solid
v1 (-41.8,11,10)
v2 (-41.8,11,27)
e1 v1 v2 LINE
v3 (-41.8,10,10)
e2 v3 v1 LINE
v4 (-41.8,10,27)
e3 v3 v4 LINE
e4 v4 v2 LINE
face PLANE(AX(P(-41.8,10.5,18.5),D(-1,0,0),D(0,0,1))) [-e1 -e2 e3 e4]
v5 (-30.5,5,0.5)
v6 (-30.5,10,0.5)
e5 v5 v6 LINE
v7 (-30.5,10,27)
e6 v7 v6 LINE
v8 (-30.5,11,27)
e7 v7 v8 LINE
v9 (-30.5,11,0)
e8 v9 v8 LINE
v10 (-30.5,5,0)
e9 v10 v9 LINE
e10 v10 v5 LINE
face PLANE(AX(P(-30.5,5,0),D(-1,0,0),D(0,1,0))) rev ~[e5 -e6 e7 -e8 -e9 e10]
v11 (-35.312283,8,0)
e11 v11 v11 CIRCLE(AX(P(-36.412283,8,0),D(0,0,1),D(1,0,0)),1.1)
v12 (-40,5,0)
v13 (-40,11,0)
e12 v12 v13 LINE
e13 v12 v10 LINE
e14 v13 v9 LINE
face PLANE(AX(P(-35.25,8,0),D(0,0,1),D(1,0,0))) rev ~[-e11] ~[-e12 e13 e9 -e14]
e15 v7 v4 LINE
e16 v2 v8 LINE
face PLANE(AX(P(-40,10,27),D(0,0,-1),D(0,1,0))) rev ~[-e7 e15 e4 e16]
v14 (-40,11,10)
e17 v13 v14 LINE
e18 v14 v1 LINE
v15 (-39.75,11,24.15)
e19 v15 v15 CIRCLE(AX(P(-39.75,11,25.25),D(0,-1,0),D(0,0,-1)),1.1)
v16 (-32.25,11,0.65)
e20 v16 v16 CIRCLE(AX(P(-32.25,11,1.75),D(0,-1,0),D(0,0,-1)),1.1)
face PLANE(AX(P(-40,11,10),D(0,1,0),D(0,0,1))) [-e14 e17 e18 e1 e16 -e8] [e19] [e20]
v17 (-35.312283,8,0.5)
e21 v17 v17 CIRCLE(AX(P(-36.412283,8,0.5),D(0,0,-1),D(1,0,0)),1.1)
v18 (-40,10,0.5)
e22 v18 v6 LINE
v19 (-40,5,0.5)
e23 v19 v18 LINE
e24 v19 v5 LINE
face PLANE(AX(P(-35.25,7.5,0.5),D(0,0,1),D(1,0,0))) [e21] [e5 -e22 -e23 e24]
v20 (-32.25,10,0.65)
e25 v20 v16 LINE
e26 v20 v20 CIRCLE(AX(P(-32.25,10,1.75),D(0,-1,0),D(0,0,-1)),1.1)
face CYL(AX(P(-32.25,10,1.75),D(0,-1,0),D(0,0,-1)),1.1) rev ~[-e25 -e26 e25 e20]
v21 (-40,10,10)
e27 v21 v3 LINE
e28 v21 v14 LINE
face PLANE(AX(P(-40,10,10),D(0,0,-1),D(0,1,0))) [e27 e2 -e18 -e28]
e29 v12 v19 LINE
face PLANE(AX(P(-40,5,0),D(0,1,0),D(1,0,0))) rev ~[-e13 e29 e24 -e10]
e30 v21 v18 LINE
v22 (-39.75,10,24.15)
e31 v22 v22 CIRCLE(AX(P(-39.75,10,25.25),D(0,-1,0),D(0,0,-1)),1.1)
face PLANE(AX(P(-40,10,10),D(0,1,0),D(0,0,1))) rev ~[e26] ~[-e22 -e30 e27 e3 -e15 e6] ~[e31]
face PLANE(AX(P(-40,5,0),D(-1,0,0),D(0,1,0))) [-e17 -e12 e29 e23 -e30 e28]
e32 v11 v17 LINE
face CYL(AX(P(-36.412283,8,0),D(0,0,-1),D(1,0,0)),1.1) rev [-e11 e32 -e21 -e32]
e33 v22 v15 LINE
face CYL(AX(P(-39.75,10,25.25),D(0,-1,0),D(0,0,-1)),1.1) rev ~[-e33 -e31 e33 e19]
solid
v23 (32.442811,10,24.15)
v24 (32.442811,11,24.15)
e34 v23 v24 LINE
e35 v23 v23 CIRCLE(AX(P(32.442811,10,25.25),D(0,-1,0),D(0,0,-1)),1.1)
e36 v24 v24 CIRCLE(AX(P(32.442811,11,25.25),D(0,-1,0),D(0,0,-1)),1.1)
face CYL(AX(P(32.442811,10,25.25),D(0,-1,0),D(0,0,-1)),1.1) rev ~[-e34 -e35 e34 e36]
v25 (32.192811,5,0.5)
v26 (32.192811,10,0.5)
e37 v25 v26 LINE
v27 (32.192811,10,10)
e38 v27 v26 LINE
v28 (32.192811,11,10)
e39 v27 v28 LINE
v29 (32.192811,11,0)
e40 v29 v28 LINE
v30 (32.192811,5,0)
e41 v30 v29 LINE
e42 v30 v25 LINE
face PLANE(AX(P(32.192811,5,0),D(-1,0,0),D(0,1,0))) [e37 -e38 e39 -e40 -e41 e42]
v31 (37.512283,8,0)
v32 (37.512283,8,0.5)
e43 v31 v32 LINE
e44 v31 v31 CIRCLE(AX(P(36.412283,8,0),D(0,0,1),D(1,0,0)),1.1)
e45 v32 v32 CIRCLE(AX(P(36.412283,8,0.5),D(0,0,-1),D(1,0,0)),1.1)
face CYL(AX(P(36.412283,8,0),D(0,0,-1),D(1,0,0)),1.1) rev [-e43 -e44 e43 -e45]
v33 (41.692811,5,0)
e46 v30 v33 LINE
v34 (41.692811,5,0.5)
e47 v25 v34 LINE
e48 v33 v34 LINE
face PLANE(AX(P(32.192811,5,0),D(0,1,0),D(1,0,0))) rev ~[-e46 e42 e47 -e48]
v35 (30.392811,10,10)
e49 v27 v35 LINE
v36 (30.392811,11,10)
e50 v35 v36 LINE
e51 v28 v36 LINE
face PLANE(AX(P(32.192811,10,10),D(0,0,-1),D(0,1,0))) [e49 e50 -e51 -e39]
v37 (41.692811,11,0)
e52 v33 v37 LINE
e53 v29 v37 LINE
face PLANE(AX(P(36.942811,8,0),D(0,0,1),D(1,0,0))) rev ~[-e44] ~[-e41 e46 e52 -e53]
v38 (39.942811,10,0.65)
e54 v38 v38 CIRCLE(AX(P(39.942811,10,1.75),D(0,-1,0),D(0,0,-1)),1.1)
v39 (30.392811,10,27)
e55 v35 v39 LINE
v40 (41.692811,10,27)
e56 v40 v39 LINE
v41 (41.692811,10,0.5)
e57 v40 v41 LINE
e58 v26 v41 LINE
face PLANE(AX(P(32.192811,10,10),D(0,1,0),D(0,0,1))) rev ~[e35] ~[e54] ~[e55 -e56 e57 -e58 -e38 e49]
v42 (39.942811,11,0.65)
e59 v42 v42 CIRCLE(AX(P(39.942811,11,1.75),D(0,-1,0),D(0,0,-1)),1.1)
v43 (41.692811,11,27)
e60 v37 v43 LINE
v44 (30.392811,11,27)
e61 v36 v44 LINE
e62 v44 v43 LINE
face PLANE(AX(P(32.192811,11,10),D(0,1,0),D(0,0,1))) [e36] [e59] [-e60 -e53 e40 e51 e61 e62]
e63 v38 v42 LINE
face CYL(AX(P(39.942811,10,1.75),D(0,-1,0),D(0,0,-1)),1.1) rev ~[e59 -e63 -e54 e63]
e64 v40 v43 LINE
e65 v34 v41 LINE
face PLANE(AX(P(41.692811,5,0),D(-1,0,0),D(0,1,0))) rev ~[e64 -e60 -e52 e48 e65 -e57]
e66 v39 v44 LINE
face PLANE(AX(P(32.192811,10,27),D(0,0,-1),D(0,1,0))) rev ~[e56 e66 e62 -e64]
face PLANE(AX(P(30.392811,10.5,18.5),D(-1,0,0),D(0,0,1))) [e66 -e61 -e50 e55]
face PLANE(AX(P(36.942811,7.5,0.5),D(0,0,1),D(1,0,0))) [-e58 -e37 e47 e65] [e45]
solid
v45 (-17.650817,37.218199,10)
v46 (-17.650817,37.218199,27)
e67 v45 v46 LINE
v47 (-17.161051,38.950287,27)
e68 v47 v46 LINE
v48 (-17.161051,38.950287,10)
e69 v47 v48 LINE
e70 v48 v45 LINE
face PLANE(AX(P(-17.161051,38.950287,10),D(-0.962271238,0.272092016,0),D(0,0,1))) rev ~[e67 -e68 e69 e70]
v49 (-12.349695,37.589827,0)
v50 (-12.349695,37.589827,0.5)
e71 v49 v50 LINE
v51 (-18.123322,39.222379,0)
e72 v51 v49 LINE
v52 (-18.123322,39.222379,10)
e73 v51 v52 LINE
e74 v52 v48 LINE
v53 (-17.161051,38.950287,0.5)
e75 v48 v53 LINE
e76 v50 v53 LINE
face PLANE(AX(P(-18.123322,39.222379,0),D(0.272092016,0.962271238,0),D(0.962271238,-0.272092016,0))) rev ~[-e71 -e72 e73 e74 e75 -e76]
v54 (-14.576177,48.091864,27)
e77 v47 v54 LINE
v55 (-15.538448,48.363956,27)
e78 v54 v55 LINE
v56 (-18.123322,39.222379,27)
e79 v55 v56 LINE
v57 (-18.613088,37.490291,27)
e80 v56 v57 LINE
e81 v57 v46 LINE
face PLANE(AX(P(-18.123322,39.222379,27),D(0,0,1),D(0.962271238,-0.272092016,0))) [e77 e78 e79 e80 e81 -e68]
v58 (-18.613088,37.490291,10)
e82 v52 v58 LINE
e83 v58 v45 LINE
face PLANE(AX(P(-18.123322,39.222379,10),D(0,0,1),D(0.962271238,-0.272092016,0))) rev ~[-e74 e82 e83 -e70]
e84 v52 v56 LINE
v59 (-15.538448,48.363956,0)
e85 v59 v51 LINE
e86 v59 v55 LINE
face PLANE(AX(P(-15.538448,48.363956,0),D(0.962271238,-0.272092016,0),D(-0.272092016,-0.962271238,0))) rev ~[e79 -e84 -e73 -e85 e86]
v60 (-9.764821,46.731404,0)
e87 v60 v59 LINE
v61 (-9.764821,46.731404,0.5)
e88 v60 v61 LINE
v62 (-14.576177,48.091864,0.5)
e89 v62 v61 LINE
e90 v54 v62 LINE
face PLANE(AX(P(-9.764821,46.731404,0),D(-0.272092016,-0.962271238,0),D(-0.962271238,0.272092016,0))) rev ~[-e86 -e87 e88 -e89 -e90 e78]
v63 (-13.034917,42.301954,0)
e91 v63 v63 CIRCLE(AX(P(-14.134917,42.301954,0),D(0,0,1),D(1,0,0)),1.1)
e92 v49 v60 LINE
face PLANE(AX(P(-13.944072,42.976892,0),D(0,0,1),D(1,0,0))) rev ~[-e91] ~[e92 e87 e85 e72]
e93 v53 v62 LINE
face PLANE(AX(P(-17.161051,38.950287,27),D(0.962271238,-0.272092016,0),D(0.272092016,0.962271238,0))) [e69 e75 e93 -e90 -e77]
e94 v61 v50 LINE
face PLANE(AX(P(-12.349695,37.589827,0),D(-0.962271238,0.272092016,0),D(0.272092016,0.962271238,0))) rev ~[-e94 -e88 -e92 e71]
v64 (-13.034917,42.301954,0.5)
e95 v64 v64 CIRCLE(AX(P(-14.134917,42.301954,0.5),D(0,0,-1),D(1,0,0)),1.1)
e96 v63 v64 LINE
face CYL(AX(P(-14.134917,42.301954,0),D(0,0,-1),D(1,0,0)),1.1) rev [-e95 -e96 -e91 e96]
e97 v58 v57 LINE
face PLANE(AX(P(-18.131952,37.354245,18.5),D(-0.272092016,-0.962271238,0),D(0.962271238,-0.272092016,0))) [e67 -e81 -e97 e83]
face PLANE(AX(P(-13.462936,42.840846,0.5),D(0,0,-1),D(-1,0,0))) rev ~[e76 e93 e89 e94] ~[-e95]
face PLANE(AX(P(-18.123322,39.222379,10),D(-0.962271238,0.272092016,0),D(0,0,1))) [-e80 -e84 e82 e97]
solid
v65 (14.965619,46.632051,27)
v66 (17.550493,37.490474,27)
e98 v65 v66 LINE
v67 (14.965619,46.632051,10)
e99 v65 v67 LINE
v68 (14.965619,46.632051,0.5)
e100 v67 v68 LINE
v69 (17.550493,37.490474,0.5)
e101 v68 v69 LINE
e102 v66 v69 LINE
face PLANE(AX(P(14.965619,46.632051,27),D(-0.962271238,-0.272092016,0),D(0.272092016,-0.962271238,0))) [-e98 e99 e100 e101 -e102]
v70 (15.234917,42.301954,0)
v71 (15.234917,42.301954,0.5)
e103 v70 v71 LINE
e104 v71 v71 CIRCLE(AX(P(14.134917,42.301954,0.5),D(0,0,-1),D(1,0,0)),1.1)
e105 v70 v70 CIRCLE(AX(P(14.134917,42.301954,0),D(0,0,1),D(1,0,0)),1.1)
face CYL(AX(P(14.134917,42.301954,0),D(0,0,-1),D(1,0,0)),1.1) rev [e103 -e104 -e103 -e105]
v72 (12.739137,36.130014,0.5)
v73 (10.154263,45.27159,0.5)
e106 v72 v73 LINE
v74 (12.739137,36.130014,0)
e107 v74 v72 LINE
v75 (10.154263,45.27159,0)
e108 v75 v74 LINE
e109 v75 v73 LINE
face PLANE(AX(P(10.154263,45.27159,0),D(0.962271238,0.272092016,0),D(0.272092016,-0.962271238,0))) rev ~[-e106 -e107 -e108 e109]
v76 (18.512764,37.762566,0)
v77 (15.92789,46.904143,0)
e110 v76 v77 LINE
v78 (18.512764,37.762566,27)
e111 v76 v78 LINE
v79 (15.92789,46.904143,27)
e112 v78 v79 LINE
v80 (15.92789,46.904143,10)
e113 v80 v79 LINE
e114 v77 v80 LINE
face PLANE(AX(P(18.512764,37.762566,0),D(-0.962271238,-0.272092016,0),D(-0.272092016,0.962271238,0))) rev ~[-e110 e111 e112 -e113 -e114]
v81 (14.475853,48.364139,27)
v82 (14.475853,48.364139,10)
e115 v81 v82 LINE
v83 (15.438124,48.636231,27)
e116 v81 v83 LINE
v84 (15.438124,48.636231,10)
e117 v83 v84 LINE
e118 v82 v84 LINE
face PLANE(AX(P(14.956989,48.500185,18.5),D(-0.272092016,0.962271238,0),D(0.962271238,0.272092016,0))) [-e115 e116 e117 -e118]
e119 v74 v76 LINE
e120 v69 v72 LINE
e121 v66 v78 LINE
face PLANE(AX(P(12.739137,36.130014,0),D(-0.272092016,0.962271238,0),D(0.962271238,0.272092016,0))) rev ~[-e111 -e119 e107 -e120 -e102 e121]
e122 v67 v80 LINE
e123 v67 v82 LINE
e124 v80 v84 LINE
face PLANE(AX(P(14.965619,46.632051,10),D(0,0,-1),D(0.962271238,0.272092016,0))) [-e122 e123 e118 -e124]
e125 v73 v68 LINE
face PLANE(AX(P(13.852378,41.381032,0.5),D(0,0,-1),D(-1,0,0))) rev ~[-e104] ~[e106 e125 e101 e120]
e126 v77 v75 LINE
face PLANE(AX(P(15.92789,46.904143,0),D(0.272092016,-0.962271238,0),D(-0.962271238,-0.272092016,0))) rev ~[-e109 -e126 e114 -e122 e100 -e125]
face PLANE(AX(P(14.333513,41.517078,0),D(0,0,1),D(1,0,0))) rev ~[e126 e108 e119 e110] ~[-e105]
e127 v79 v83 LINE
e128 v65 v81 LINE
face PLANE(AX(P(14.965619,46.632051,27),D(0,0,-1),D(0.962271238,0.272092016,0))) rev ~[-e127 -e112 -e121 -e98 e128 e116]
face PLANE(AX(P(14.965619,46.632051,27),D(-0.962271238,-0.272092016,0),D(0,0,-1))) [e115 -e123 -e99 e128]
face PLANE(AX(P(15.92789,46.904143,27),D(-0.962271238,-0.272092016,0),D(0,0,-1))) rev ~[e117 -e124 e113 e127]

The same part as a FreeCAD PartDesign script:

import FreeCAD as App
import Part
import Sketcher


def add_polygon(sketch, points):
    """Adds a closed chain of lines whose ends are joined by coincident constraints."""
    first, n = sketch.GeometryCount, len(points)
    for a, b in zip(points, points[1:] + points[:1]):
        sketch.addGeometry(Part.LineSegment(App.Vector(*a, 0), App.Vector(*b, 0)), False)
    for i in range(n):
        sketch.addConstraint(Sketcher.Constraint("Coincident", first + i, 2, first + (i + 1) % n, 1))

doc = App.newDocument("Part")
body = doc.addObject("PartDesign::Body", "Body")

sketch1 = body.newObject("Sketcher::SketchObject", "Sketch")
sketch1.AttachmentSupport = (doc.getObject("XY_Plane"), [""])
sketch1.MapMode = "FlatFace"
add_polygon(sketch1, [(-40, 11), (-40, 5), (-30.5, 5), (-30.5, 11)])
sketch1.addGeometry(Part.Circle(App.Vector(-36.4, 8, 0), App.Vector(0, 0, 1), 1.1), False)
sketch1.addConstraint([
    Sketcher.Constraint("Vertical", 0),
    Sketcher.Constraint("Horizontal", 1),
    Sketcher.Constraint("Vertical", 2),
    Sketcher.Constraint("Horizontal", 3),
    Sketcher.Constraint("Diameter", 4, 2.2),
    Sketcher.Constraint("DistanceY", 0, 2, 0, 1, 6.0),
    Sketcher.Constraint("DistanceX", 1, 1, 1, 2, 9.5),
    Sketcher.Constraint("DistanceY", -1, 1, 4, 3, 8.0),
    Sketcher.Constraint("DistanceX", 0, 2, -1, 1, 40.0),
    Sketcher.Constraint("DistanceY", -1, 1, 0, 2, 5.0),
    Sketcher.Constraint("DistanceX", 4, 3, -1, 1, 36.412283),
])
pad1 = body.newObject("PartDesign::Pad", "Pad")
pad1.Profile = sketch1
pad1.Length = 27
body2 = doc.addObject("PartDesign::Body", "Body001")

sketch2 = body2.newObject("Sketcher::SketchObject", "Sketch001")
sketch2.AttachmentSupport = (doc.getObject("XY_Plane001"), [""])
sketch2.MapMode = "FlatFace"
add_polygon(sketch2, [(32.2, 11), (32.2, 5), (41.7, 5), (41.7, 11)])
sketch2.addGeometry(Part.Circle(App.Vector(36.4, 8, 0), App.Vector(0, 0, 1), 1.1), False)
sketch2.addConstraint([
    Sketcher.Constraint("Vertical", 0),
    Sketcher.Constraint("Horizontal", 1),
    Sketcher.Constraint("Vertical", 2),
    Sketcher.Constraint("Horizontal", 3),
    Sketcher.Constraint("Diameter", 4, 2.2),
    Sketcher.Constraint("DistanceY", 0, 2, 0, 1, 6.0),
    Sketcher.Constraint("DistanceX", 1, 1, 1, 2, 9.5),
    Sketcher.Constraint("DistanceY", -1, 1, 4, 3, 8.0),
    Sketcher.Constraint("DistanceY", -1, 1, 0, 2, 5.0),
    Sketcher.Constraint("DistanceX", -1, 1, 0, 2, 32.192811),
    Sketcher.Constraint("DistanceX", -1, 1, 4, 3, 36.412283),
])
pad2 = body2.newObject("PartDesign::Pad", "Pad001")
pad2.Profile = sketch2
pad2.Length = 27
body3 = doc.addObject("PartDesign::Body", "Body002")

sketch3 = body3.newObject("Sketcher::SketchObject", "Sketch002")
sketch3.AttachmentSupport = (doc.getObject("XY_Plane002"), [""])
sketch3.MapMode = "FlatFace"
add_polygon(sketch3, [(15.9, 46.9), (10.2, 45.3), (12.7, 36.1), (18.5, 37.8)])
sketch3.addGeometry(Part.Circle(App.Vector(14.1, 42.3, 0), App.Vector(0, 0, 1), 1.1), False)
sketch3.addConstraint([
    Sketcher.Constraint("Perpendicular", 0, 1),
    Sketcher.Constraint("Perpendicular", 1, 2),
    Sketcher.Constraint("Perpendicular", 2, 3),
    Sketcher.Constraint("Diameter", 4, 2.2),
    Sketcher.Constraint("Distance", 0, 6.0),
    Sketcher.Constraint("Distance", 1, 9.5),
    Sketcher.Constraint("DistanceX", 0, 2, 2, 2, 8.358502),
    Sketcher.Constraint("DistanceY", -1, 1, 0, 2, 45.27159),
    Sketcher.Constraint("DistanceX", -1, 1, 3, 2, 15.92789),
    Sketcher.Constraint("DistanceX", 1, 2, 4, 3, 1.39578),
    Sketcher.Constraint("DistanceY", 1, 2, 4, 3, 6.17194),
])
pad3 = body3.newObject("PartDesign::Pad", "Pad002")
pad3.Profile = sketch3
pad3.Length = 27
body4 = doc.addObject("PartDesign::Body", "Body003")

sketch4 = body4.newObject("Sketcher::SketchObject", "Sketch003")
sketch4.AttachmentSupport = (doc.getObject("XY_Plane003"), [""])
sketch4.MapMode = "FlatFace"
add_polygon(sketch4, [(-18.1, 39.2), (-12.3, 37.6), (-9.8, 46.7), (-15.5, 48.4)])
sketch4.addGeometry(Part.Circle(App.Vector(-14.1, 42.3, 0), App.Vector(0, 0, 1), 1.1), False)
sketch4.addConstraint([
    Sketcher.Constraint("Perpendicular", 0, 1),
    Sketcher.Constraint("Perpendicular", 1, 2),
    Sketcher.Constraint("Perpendicular", 2, 3),
    Sketcher.Constraint("Diameter", 4, 2.2),
    Sketcher.Constraint("Distance", 0, 6.0),
    Sketcher.Constraint("Distance", 1, 9.5),
    Sketcher.Constraint("DistanceX", 3, 2, 1, 2, 8.358502),
    Sketcher.Constraint("DistanceX", 1, 2, -1, 1, 9.764821),
    Sketcher.Constraint("DistanceY", -1, 1, 3, 2, 39.222379),
    Sketcher.Constraint("DistanceY", 4, 3, 1, 2, 4.42945),
    Sketcher.Constraint("DistanceX", 2, 2, 4, 3, 1.403531),
])
pad4 = body4.newObject("PartDesign::Pad", "Pad003")
pad4.Profile = sketch4
pad4.Length = 27
body5 = doc.addObject("PartDesign::Body", "Body004")
body5.AllowCompound = True

sketch5 = body5.newObject("Sketcher::SketchObject", "Sketch004")
sketch5.AttachmentSupport = (doc.getObject("XY_Plane004"), [""])
sketch5.MapMode = "FlatFace"
sketch5.AttachmentOffset = App.Placement(App.Vector(0, 0, 27), App.Rotation())
add_polygon(sketch5, [(-40, 10), (-40, 5), (-30.5, 5), (-30.5, 10)])
add_polygon(sketch5, [(-17.2, 39), (-12.3, 37.6), (-9.8, 46.7), (-14.6, 48.1)])
add_polygon(sketch5, [(15, 46.6), (10.2, 45.3), (12.7, 36.1), (17.6, 37.5)])
add_polygon(sketch5, [(32.2, 10), (32.2, 5), (41.7, 5), (41.7, 10)])
sketch5.addConstraint([
    Sketcher.Constraint("Vertical", 0),
    Sketcher.Constraint("Horizontal", 1),
    Sketcher.Constraint("Vertical", 2),
    Sketcher.Constraint("Horizontal", 3),
    Sketcher.Constraint("Vertical", 12),
    Sketcher.Constraint("Horizontal", 13),
    Sketcher.Constraint("Vertical", 14),
    Sketcher.Constraint("Horizontal", 15),
    Sketcher.Constraint("Perpendicular", 4, 5),
    Sketcher.Constraint("Perpendicular", 5, 6),
    Sketcher.Constraint("Perpendicular", 6, 7),
    Sketcher.Constraint("Perpendicular", 8, 9),
    Sketcher.Constraint("Perpendicular", 9, 10),
    Sketcher.Constraint("Perpendicular", 10, 11),
    Sketcher.Constraint("Horizontal", 1, 2, 12, 2),
    Sketcher.Constraint("Horizontal", 3, 2, 14, 2),
    Sketcher.Constraint("Equal", 3, 13),
    Sketcher.Constraint("Equal", 6, 8),
    Sketcher.Constraint("Equal", 7, 9),
    Sketcher.Constraint("DistanceY", 0, 2, 0, 1, 5.0),
    Sketcher.Constraint("Distance", 4, 5.0),
    Sketcher.Constraint("DistanceX", 1, 1, 1, 2, 9.5),
    Sketcher.Constraint("DistanceX", 0, 2, -1, 1, 40.0),
    Sketcher.Constraint("DistanceY", -1, 1, 0, 2, 5.0),
    Sketcher.Constraint("Distance", 5, 9.5),
    Sketcher.Constraint("DistanceX", 5, 2, -1, 1, 9.764821),
    Sketcher.Constraint("DistanceX", 7, 2, -1, 1, 17.161051),
    Sketcher.Constraint("DistanceY", -1, 1, 8, 2, 45.27159),
    Sketcher.Constraint("DistanceX", -1, 1, 11, 2, 14.965619),
    Sketcher.Constraint("DistanceY", -1, 1, 11, 2, 46.632051),
    Sketcher.Constraint("DistanceX", -1, 1, 12, 2, 32.192811),
    Sketcher.Constraint("DistanceY", 9, 2, 5, 2, 10.60139),
])
pad5 = body5.newObject("PartDesign::Pad", "Pad004")
pad5.Profile = sketch5
pad5.Length = 26.5
pad5.Reversed = True
doc.recompute()

body6 = doc.addObject("PartDesign::Body", "Body005")
body6.BaseFeature = body5
boolean = body.newObject("PartDesign::Boolean", "Boolean")
boolean.Type = "Cut"
boolean.addObjects([body6])
doc.recompute()

sketch6 = body.newObject("Sketcher::SketchObject", "Sketch005")
sketch6.AttachmentSupport = (doc.getObject("YZ_Plane"), [""])
sketch6.MapMode = "FlatFace"
sketch6.AttachmentOffset = App.Placement(App.Vector(0, 0, -40), App.Rotation())
add_polygon(sketch6, [(11, 10), (10, 10), (10, 27), (11, 27)])
sketch6.addConstraint([
    Sketcher.Constraint("Horizontal", 0),
    Sketcher.Constraint("Vertical", 1),
    Sketcher.Constraint("Horizontal", 2),
    Sketcher.Constraint("Vertical", 3),
    Sketcher.Constraint("DistanceX", 0, 2, 0, 1, 1.0),
    Sketcher.Constraint("DistanceY", 1, 1, 1, 2, 17.0),
    Sketcher.Constraint("DistanceX", -1, 1, 0, 2, 10.0),
    Sketcher.Constraint("DistanceY", -1, 1, 0, 2, 10.0),
])
pad6 = body.newObject("PartDesign::Pad", "Pad005")
pad6.Profile = sketch6
pad6.Length = 1.8
pad6.Reversed = True
doc.recompute()

body7 = doc.addObject("PartDesign::Body", "Body006")
body7.BaseFeature = body5
boolean2 = body2.newObject("PartDesign::Boolean", "Boolean001")
boolean2.Type = "Cut"
boolean2.addObjects([body7])
doc.recompute()

sketch7 = body2.newObject("Sketcher::SketchObject", "Sketch006")
sketch7.AttachmentSupport = (doc.getObject("YZ_Plane001"), [""])
sketch7.MapMode = "FlatFace"
sketch7.AttachmentOffset = App.Placement(App.Vector(0, 0, 32.192811), App.Rotation())
add_polygon(sketch7, [(11, 10), (10, 10), (10, 27), (11, 27)])
sketch7.addConstraint([
    Sketcher.Constraint("Horizontal", 0),
    Sketcher.Constraint("Vertical", 1),
    Sketcher.Constraint("Horizontal", 2),
    Sketcher.Constraint("Vertical", 3),
    Sketcher.Constraint("DistanceX", 0, 2, 0, 1, 1.0),
    Sketcher.Constraint("DistanceY", 1, 1, 1, 2, 17.0),
    Sketcher.Constraint("DistanceX", -1, 1, 0, 2, 10.0),
    Sketcher.Constraint("DistanceY", -1, 1, 0, 2, 10.0),
])
pad7 = body2.newObject("PartDesign::Pad", "Pad006")
pad7.Profile = sketch7
pad7.Length = 1.8
pad7.Reversed = True
doc.recompute()

body8 = doc.addObject("PartDesign::Body", "Body007")
body8.BaseFeature = body5
boolean3 = body3.newObject("PartDesign::Boolean", "Boolean002")
boolean3.Type = "Cut"
boolean3.addObjects([body8])
doc.recompute()

sketch8 = body3.newObject("Sketcher::SketchObject", "Sketch007")
sketch8.Placement = App.Placement(App.Vector(-11.101533, 39.261297, 0), App.Rotation(App.Vector(0.962271238, 0.272092016, 0), App.Vector(0, 0, -1.000000001), App.Vector(-0.272092016, 0.962271238, 0), "ZXY"))
add_polygon(sketch8, [(27.1, -10), (27.1, -27), (28.1, -27), (28.1, -10)])
sketch8.addConstraint([
    Sketcher.Constraint("Vertical", 0),
    Sketcher.Constraint("Horizontal", 1),
    Sketcher.Constraint("Vertical", 2),
    Sketcher.Constraint("Horizontal", 3),
    Sketcher.Constraint("DistanceX", 1, 1, 1, 2, 1.0),
    Sketcher.Constraint("DistanceY", 0, 2, 0, 1, 17.0),
    Sketcher.Constraint("DistanceY", 0, 2, -1, 1, 27.0),
    Sketcher.Constraint("DistanceX", -1, 1, 0, 2, 27.089193),
])
pad8 = body3.newObject("PartDesign::Pad", "Pad007")
pad8.Profile = sketch8
pad8.Length = 1.8
doc.recompute()

boolean4 = body4.newObject("PartDesign::Boolean", "Boolean003")
boolean4.Type = "Cut"
boolean4.addObjects([body5])

sketch9 = body4.newObject("Sketcher::SketchObject", "Sketch008")
sketch9.Placement = App.Placement(App.Vector(8.927708, 31.573424, 0), App.Rotation(App.Vector(0.962271238, -0.272092016, 0), App.Vector(0, 0, 1.000000001), App.Vector(-0.272092016, -0.962271238, 0), "ZXY"))
add_polygon(sketch9, [(-28.1, 27), (-28.1, 10), (-27.1, 10), (-27.1, 27)])
sketch9.addConstraint([
    Sketcher.Constraint("Vertical", 0),
    Sketcher.Constraint("Horizontal", 1),
    Sketcher.Constraint("Vertical", 2),
    Sketcher.Constraint("Horizontal", 3),
    Sketcher.Constraint("DistanceX", 1, 1, 1, 2, 1.0),
    Sketcher.Constraint("DistanceY", 0, 2, 0, 1, 17.0),
    Sketcher.Constraint("DistanceY", -1, 1, 0, 2, 10.0),
    Sketcher.Constraint("DistanceX", 0, 2, -1, 1, 28.111648),
])
pad9 = body4.newObject("PartDesign::Pad", "Pad008")
pad9.Profile = sketch9
pad9.Length = 1.8
body9 = doc.addObject("PartDesign::Body", "Body008")
body9.AllowCompound = True

sketch10 = body9.newObject("Sketcher::SketchObject", "Sketch009")
sketch10.AttachmentSupport = (doc.getObject("XZ_Plane008"), [""])
sketch10.MapMode = "FlatFace"
sketch10.AttachmentOffset = App.Placement(App.Vector(0, 0, -10), App.Rotation())
sketch10.addGeometry([
    Part.Circle(App.Vector(32.4, 25.2, 0), App.Vector(0, 0, 1), 1.1),
    Part.Circle(App.Vector(39.9, 1.8, 0), App.Vector(0, 0, 1), 1.1),
    Part.Circle(App.Vector(-39.8, 25.2, 0), App.Vector(0, 0, 1), 1.1),
    Part.Circle(App.Vector(-32.2, 1.8, 0), App.Vector(0, 0, 1), 1.1),
], False)
sketch10.addConstraint([
    Sketcher.Constraint("Equal", 0, 1),
    Sketcher.Constraint("Equal", 1, 2),
    Sketcher.Constraint("Equal", 2, 3),
    Sketcher.Constraint("Horizontal", 0, 3, 2, 3),
    Sketcher.Constraint("Horizontal", 1, 3, 3, 3),
    Sketcher.Constraint("Diameter", 0, 2.2),
    Sketcher.Constraint("DistanceX", 0, 3, 1, 3, 7.5),
    Sketcher.Constraint("DistanceY", 1, 3, 0, 3, 23.5),
    Sketcher.Constraint("DistanceX", 2, 3, 3, 3, 7.5),
    Sketcher.Constraint("DistanceY", -1, 1, 0, 3, 25.25),
    Sketcher.Constraint("DistanceX", 2, 3, -1, 1, 39.75),
    Sketcher.Constraint("DistanceX", -1, 1, 0, 3, 32.442811),
])
pad10 = body9.newObject("PartDesign::Pad", "Pad009")
pad10.Profile = sketch10
pad10.Length = 1
pad10.Reversed = True
doc.recompute()

body10 = doc.addObject("PartDesign::Body", "Body009")
body10.BaseFeature = body9
boolean5 = body.newObject("PartDesign::Boolean", "Boolean004")
boolean5.Type = "Cut"
boolean5.addObjects([body10])
doc.recompute()

boolean6 = body2.newObject("PartDesign::Boolean", "Boolean005")
boolean6.Type = "Cut"
boolean6.addObjects([body9])

doc.recompute()
